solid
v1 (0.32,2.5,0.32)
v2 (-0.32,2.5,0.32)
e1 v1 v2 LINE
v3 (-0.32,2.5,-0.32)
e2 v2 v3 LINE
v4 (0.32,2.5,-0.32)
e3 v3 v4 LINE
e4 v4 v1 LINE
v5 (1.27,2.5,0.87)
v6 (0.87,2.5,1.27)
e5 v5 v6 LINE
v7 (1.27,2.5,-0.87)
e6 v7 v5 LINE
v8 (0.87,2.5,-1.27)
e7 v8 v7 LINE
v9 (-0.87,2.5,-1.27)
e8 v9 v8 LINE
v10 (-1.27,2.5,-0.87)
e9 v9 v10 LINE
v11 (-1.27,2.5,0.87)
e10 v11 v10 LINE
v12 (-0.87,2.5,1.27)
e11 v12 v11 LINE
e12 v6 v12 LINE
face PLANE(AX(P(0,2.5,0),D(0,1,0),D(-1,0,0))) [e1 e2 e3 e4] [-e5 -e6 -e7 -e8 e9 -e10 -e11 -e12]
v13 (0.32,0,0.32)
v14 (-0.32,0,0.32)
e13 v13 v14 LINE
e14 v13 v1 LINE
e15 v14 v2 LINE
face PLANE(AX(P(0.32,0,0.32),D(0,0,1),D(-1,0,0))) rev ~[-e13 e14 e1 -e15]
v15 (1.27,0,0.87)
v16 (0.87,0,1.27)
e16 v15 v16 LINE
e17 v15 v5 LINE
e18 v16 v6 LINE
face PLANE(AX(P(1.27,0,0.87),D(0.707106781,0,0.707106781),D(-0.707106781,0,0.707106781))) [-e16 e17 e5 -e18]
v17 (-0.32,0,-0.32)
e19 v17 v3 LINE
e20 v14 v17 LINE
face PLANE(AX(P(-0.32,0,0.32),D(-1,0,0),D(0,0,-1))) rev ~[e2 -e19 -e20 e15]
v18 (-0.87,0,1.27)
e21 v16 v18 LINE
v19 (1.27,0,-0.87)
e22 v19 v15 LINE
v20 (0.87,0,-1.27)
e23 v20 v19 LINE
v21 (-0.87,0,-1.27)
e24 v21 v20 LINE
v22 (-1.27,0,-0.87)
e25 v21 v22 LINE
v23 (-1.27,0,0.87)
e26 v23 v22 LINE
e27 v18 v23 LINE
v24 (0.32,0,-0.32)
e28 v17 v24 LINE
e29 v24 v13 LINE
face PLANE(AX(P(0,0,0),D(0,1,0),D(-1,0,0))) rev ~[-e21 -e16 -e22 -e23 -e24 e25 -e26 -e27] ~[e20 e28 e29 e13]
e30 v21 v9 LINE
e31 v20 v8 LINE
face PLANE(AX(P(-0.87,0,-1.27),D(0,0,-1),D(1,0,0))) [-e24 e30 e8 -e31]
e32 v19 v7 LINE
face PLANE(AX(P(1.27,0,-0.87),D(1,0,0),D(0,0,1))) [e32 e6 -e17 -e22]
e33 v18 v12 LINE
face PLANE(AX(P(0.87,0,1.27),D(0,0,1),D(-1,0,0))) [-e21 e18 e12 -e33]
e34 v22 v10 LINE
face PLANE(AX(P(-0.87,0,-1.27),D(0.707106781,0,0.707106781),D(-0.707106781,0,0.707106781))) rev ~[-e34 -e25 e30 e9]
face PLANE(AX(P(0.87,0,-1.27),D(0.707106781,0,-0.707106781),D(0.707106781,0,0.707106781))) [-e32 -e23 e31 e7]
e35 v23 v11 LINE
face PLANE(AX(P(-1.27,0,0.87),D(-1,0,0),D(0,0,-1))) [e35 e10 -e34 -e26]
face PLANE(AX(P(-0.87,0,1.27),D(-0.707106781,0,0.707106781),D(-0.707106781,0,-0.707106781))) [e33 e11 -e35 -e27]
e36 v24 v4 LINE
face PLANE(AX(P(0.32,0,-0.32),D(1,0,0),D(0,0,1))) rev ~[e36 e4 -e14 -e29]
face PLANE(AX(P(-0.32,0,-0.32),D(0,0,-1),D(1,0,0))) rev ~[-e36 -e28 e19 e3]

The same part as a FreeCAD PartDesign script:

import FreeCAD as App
import Part
import Sketcher

V = App.Vector


def add_polygon(sketch, points):
    """Adds a closed chain of lines whose ends are joined by coincident constraints."""
    first, n = sketch.GeometryCount, len(points)
    for a, b in zip(points, points[1:] + points[:1]):
        sketch.addGeometry(Part.LineSegment(App.Vector(*a, 0), App.Vector(*b, 0)), False)
    for i in range(n):
        sketch.addConstraint(Sketcher.Constraint("Coincident", first + i, 2, first + (i + 1) % n, 1))

doc = App.newDocument("Part")
body = doc.addObject("PartDesign::Body", "Body")

# Sketch on XZ plane
sketch1 = body.newObject("Sketcher::SketchObject", "Sketch")
sketch1.AttachmentSupport = (doc.getObject("XZ_Plane"), [""])
sketch1.MapMode = "FlatFace"
add_polygon(sketch1, [(0.9, -1.3), (-0.9, -1.3), (-1.3, -0.9), (-1.3, 0.9), (-0.9, 1.3), (0.9, 1.3), (1.3, 0.9), (1.3, -0.9)])  # lines 0-7
add_polygon(sketch1, [(-0.3, 0.3), (-0.3, -0.3), (0.3, -0.3), (0.3, 0.3)])  # lines 8-11
sketch1.addConstraint(Sketcher.Constraint("Horizontal", 0))
sketch1.addConstraint(Sketcher.Constraint("Vertical", 2))
sketch1.addConstraint(Sketcher.Constraint("Horizontal", 4))
sketch1.addConstraint(Sketcher.Constraint("Vertical", 6))
sketch1.addConstraint(Sketcher.Constraint("Vertical", 8))
sketch1.addConstraint(Sketcher.Constraint("Horizontal", 9))
sketch1.addConstraint(Sketcher.Constraint("Vertical", 10))
sketch1.addConstraint(Sketcher.Constraint("Horizontal", 11))
sketch1.addConstraint(Sketcher.Constraint("Symmetric", 0, 2, 4, 2, -1, 1))
sketch1.addConstraint(Sketcher.Constraint("Symmetric", 1, 2, 5, 2, -1, 1))
sketch1.addConstraint(Sketcher.Constraint("Symmetric", 8, 2, 10, 2, -1, 1))
sketch1.addConstraint(Sketcher.Constraint("Perpendicular", 1, 3))
sketch1.addConstraint(Sketcher.Constraint("Perpendicular", 5, 7))
sketch1.addConstraint(Sketcher.Constraint("Horizontal", 2, 2, 5, 2))
sketch1.addConstraint(Sketcher.Constraint("Horizontal", 1, 2, 6, 2))
sketch1.addConstraint(Sketcher.Constraint("Vertical", 0, 2, 3, 2))
sketch1.addConstraint(Sketcher.Constraint("Equal", 4, 2))
sketch1.addConstraint(Sketcher.Constraint("Equal", 11, 8))
sketch1.addConstraint(Sketcher.Constraint("DistanceX", 9, 1, 9, 2, 0.64))
sketch1.addConstraint(Sketcher.Constraint("DistanceX", 1, 2, 0, 2, 0.4))
sketch1.addConstraint(Sketcher.Constraint("DistanceY", 0, 2, 3, 2, 2.54))
pad1 = body.newObject("PartDesign::Pad", "Pad")
pad1.Profile = sketch1
pad1.Length = 2.5
pad1.Reversed = True

doc.recompute()
